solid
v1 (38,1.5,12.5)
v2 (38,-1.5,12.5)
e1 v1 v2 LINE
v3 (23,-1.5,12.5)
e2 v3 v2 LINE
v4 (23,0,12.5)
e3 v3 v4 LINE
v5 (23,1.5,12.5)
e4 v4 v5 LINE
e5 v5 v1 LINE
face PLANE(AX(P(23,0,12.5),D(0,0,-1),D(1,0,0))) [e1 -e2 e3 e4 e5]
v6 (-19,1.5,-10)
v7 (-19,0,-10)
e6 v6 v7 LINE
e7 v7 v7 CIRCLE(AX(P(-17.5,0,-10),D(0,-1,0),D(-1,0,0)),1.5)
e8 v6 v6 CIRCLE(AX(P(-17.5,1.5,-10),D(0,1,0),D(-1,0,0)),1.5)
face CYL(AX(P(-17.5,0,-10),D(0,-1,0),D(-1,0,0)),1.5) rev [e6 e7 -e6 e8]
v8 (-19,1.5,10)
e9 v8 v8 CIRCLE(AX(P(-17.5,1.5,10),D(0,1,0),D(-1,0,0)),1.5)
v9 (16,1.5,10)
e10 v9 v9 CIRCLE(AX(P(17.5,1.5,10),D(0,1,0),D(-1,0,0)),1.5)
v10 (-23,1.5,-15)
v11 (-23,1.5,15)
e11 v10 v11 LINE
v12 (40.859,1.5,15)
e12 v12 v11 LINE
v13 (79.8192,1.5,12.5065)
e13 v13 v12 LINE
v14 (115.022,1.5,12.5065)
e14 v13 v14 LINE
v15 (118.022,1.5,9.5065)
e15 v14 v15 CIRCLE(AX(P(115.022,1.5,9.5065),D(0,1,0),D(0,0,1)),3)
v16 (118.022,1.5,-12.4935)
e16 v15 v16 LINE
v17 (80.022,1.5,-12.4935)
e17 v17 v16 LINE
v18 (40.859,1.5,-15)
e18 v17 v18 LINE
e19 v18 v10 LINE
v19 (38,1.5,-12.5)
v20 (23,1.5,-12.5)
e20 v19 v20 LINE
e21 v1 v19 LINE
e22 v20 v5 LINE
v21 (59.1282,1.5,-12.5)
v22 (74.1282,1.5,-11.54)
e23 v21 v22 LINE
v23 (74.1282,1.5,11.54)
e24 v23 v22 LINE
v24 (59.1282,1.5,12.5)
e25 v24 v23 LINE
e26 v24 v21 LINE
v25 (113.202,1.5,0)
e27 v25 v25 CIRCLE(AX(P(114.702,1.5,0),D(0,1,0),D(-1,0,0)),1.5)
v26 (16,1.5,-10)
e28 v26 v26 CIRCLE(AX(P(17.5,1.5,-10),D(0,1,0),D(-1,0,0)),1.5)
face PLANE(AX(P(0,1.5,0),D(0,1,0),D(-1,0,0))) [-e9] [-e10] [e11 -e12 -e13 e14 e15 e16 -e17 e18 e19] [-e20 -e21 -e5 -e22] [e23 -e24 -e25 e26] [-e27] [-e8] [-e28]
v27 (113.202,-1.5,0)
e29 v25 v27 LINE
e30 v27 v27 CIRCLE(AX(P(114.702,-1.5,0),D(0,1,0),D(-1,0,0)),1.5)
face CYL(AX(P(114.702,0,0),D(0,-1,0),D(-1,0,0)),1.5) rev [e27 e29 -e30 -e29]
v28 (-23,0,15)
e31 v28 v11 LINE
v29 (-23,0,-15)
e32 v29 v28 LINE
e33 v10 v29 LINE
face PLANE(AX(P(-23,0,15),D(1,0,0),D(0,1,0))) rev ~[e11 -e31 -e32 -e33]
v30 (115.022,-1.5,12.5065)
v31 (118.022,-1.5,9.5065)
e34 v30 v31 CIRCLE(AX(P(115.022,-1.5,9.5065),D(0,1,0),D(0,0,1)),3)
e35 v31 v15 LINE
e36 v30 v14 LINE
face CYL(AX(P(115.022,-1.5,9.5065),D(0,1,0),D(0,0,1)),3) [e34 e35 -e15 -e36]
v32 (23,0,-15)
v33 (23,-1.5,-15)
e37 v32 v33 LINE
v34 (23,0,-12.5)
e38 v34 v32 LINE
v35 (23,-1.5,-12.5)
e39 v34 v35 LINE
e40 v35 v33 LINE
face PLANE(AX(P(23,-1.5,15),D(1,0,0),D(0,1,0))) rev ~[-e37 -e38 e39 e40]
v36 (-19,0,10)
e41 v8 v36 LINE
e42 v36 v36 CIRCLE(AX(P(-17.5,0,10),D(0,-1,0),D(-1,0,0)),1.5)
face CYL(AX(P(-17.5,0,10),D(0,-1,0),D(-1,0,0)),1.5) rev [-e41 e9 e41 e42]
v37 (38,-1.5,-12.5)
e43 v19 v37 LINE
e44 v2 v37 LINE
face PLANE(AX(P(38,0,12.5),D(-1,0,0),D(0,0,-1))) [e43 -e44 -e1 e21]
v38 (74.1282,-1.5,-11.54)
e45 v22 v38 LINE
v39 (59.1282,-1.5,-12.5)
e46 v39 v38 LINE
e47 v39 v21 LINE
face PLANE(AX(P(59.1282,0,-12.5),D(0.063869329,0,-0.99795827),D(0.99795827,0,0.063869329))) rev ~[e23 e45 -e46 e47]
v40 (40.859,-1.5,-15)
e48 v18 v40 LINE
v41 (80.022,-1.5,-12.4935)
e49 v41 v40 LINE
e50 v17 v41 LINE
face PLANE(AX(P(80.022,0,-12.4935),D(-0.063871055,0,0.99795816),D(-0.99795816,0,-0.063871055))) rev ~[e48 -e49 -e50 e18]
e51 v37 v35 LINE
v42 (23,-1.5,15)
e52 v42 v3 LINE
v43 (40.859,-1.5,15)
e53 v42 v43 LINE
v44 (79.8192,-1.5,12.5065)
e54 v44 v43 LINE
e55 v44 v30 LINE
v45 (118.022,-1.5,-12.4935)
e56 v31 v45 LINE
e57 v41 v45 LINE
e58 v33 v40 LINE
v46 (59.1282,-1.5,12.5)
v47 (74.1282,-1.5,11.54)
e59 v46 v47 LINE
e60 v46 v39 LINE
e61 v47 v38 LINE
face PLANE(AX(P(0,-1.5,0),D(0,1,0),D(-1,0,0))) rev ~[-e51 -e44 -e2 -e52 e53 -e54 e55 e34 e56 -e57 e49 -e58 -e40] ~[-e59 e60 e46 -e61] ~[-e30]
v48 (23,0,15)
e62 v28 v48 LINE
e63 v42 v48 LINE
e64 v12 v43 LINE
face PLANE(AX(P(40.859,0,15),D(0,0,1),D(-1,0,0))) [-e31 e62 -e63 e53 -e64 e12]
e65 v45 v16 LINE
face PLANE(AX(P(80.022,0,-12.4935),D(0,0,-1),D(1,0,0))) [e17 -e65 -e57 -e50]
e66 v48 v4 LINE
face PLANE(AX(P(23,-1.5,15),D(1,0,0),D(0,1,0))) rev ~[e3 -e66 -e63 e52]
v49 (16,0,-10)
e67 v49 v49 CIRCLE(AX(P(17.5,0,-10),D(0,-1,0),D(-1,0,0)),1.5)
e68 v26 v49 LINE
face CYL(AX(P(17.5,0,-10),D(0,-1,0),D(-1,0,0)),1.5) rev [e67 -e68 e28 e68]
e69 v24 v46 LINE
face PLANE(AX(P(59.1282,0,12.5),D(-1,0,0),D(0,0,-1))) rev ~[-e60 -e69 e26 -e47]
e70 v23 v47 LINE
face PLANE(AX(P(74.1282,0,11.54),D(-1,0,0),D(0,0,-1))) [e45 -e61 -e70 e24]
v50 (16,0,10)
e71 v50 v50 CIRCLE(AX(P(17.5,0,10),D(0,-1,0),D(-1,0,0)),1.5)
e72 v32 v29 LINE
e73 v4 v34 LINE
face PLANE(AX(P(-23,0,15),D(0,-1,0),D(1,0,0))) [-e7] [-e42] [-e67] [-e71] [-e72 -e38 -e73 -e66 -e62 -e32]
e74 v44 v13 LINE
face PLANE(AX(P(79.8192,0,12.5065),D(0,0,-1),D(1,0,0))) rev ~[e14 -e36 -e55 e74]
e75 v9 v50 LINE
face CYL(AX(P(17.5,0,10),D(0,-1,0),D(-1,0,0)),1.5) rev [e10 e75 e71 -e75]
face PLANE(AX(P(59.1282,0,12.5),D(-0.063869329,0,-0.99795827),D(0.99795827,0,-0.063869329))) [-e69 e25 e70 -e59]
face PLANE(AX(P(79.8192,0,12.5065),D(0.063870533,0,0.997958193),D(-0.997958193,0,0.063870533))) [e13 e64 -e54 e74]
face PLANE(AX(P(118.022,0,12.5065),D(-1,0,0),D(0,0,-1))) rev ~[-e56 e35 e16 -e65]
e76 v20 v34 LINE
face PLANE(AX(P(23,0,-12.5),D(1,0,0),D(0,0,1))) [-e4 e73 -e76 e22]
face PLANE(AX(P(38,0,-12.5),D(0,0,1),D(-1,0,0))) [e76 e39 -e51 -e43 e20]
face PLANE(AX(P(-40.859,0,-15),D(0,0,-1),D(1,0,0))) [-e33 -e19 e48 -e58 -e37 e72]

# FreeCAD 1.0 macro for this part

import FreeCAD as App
import Part
import Sketcher

V = App.Vector
Q = App.Units.Quantity


def edges_at(feature, points):
    """Names of the edges that pass closest to the given points."""
    edges = feature.Shape.Edges
    near = lambda p: min(range(len(edges)), key=lambda i: edges[i].distToShape(Part.Vertex(*p))[0])
    return sorted({f"Edge{near(p) + 1}" for p in points})

doc = App.newDocument("Part")
body = doc.addObject("PartDesign::Body", "Body")

# Sketch on XZ plane
sketch1 = body.newObject("Sketcher::SketchObject", "Sketch")
sketch1.AttachmentSupport = (doc.getObject("XZ_Plane"), [""])
sketch1.MapMode = "FlatFace"
sketch1.addGeometry([
    Part.LineSegment(V(40.9, 15, 0), V(79.8, 12.5, 0)),  # 0
    Part.LineSegment(V(79.8, 12.5, 0), V(118, 12.5, 0)),  # 1
    Part.LineSegment(V(118, 12.5, 0), V(118, -12.5, 0)),  # 2
    Part.LineSegment(V(118, -12.5, 0), V(80, -12.5, 0)),  # 3
    Part.LineSegment(V(80, -12.5, 0), V(40.9, -15, 0)),  # 4
    Part.LineSegment(V(40.9, -15, 0), V(-40.9, -15, 0)),  # 5
    Part.LineSegment(V(-40.9, -15, 0), V(-80, -12.5, 0)),  # 6
    Part.LineSegment(V(-80, -12.5, 0), V(-118, -12.5, 0)),  # 7
    Part.LineSegment(V(-118, -12.5, 0), V(-118, 12.5, 0)),  # 8
    Part.LineSegment(V(-118, 12.5, 0), V(-79.8, 12.5, 0)),  # 9
    Part.LineSegment(V(-79.8, 12.5, 0), V(-40.9, 15, 0)),  # 10
    Part.LineSegment(V(-40.9, 15, 0), V(40.9, 15, 0)),  # 11
    Part.Circle(V(17.5, -10, 0), V(0, 0, 1), 1.5),  # 12
    Part.Circle(V(-17.5, -10, 0), V(0, 0, 1), 1.5),  # 13
    Part.Circle(V(114.7, 0, 0), V(0, 0, 1), 1.5),  # 14
    Part.LineSegment(V(59.1, 12.5, 0), V(59.1, -12.5, 0)),  # 15
    Part.LineSegment(V(59.1, -12.5, 0), V(74.1, -11.5, 0)),  # 16
    Part.LineSegment(V(74.1, -11.5, 0), V(74.1, 11.5, 0)),  # 17
    Part.LineSegment(V(74.1, 11.5, 0), V(59.1, 12.5, 0)),  # 18
    Part.LineSegment(V(38, 12.5, 0), V(23, 12.5, 0)),  # 19
    Part.LineSegment(V(23, 12.5, 0), V(23, -12.5, 0)),  # 20
    Part.LineSegment(V(23, -12.5, 0), V(38, -12.5, 0)),  # 21
    Part.LineSegment(V(38, -12.5, 0), V(38, 12.5, 0)),  # 22
    Part.Circle(V(17.5, 10, 0), V(0, 0, 1), 1.5),  # 23
    Part.LineSegment(V(-23, -12.5, 0), V(-23, 12.5, 0)),  # 24
    Part.LineSegment(V(-23, 12.5, 0), V(-38, 12.5, 0)),  # 25
    Part.LineSegment(V(-38, 12.5, 0), V(-38, -12.5, 0)),  # 26
    Part.LineSegment(V(-38, -12.5, 0), V(-23, -12.5, 0)),  # 27
    Part.LineSegment(V(-74.1, -11.5, 0), V(-59.1, -12.5, 0)),  # 28
    Part.LineSegment(V(-59.1, -12.5, 0), V(-59.1, 12.5, 0)),  # 29
    Part.LineSegment(V(-59.1, 12.5, 0), V(-74.1, 11.5, 0)),  # 30
    Part.LineSegment(V(-74.1, 11.5, 0), V(-74.1, -11.5, 0)),  # 31
    Part.Circle(V(-114.7, 0, 0), V(0, 0, 1), 1.5),  # 32
    Part.Circle(V(-17.5, 10, 0), V(0, 0, 1), 1.5),  # 33
], False)
sketch1.addConstraint([
    Sketcher.Constraint("Coincident", 0, 2, 1, 1),
    Sketcher.Constraint("Coincident", 1, 2, 2, 1),
    Sketcher.Constraint("Coincident", 2, 2, 3, 1),
    Sketcher.Constraint("Coincident", 3, 2, 4, 1),
    Sketcher.Constraint("Coincident", 4, 2, 5, 1),
    Sketcher.Constraint("Coincident", 5, 2, 6, 1),
    Sketcher.Constraint("Coincident", 6, 2, 7, 1),
    Sketcher.Constraint("Coincident", 7, 2, 8, 1),
    Sketcher.Constraint("Coincident", 8, 2, 9, 1),
    Sketcher.Constraint("Coincident", 9, 2, 10, 1),
    Sketcher.Constraint("Coincident", 10, 2, 11, 1),
    Sketcher.Constraint("Coincident", 11, 2, 0, 1),
    Sketcher.Constraint("Coincident", 15, 2, 16, 1),
    Sketcher.Constraint("Coincident", 16, 2, 17, 1),
    Sketcher.Constraint("Coincident", 17, 2, 18, 1),
    Sketcher.Constraint("Coincident", 18, 2, 15, 1),
    Sketcher.Constraint("Coincident", 19, 2, 20, 1),
    Sketcher.Constraint("Coincident", 20, 2, 21, 1),
    Sketcher.Constraint("Coincident", 21, 2, 22, 1),
    Sketcher.Constraint("Coincident", 22, 2, 19, 1),
    Sketcher.Constraint("Coincident", 24, 2, 25, 1),
    Sketcher.Constraint("Coincident", 25, 2, 26, 1),
    Sketcher.Constraint("Coincident", 26, 2, 27, 1),
    Sketcher.Constraint("Coincident", 27, 2, 24, 1),
    Sketcher.Constraint("Coincident", 28, 2, 29, 1),
    Sketcher.Constraint("Coincident", 29, 2, 30, 1),
    Sketcher.Constraint("Coincident", 30, 2, 31, 1),
    Sketcher.Constraint("Coincident", 31, 2, 28, 1),
    Sketcher.Constraint("Horizontal", 1),
    Sketcher.Constraint("Vertical", 2),
    Sketcher.Constraint("Horizontal", 3),
    Sketcher.Constraint("Horizontal", 5),
    Sketcher.Constraint("Horizontal", 7),
    Sketcher.Constraint("Vertical", 8),
    Sketcher.Constraint("Horizontal", 9),
    Sketcher.Constraint("Horizontal", 11),
    Sketcher.Constraint("Vertical", 15),
    Sketcher.Constraint("Vertical", 17),
    Sketcher.Constraint("Horizontal", 19),
    Sketcher.Constraint("Vertical", 20),
    Sketcher.Constraint("Horizontal", 21),
    Sketcher.Constraint("Vertical", 22),
    Sketcher.Constraint("Vertical", 24),
    Sketcher.Constraint("Horizontal", 25),
    Sketcher.Constraint("Vertical", 26),
    Sketcher.Constraint("Horizontal", 27),
    Sketcher.Constraint("Vertical", 29),
    Sketcher.Constraint("Vertical", 31),
    Sketcher.Constraint("Equal", 12, 13),
    Sketcher.Constraint("Equal", 13, 14),
    Sketcher.Constraint("Equal", 14, 23),
    Sketcher.Constraint("Equal", 23, 32),
    Sketcher.Constraint("Equal", 32, 33),
    Sketcher.Constraint("Symmetric", 13, 3, 23, 3, -1, 1),
    Sketcher.Constraint("Symmetric", 14, 3, 32, 3, -1, 1),
    Sketcher.Constraint("Symmetric", 12, 3, 33, 3, -1, 1),
    Sketcher.Constraint("Symmetric", 4, 2, 10, 2, -1, 1),
    Sketcher.Constraint("Symmetric", 20, 2, 24, 2, -1, 1),
    Sketcher.Constraint("Symmetric", 22, 2, 26, 2, -1, 1),
    Sketcher.Constraint("Symmetric", 18, 2, 28, 2, -1, 1),
    Sketcher.Constraint("Symmetric", 16, 2, 30, 2, -1, 1),
    Sketcher.Constraint("Symmetric", 12, 3, 13, 3, -2),
    Sketcher.Constraint("Symmetric", 3, 2, 6, 2, -2),
    Sketcher.Constraint("Symmetric", 1, 2, 8, 2, -2),
    Sketcher.Constraint("PointOnObject", 14, 3, -1),
    Sketcher.Constraint("Parallel", 0, 6),
    Sketcher.Constraint("Parallel", 4, 10),
    Sketcher.Constraint("Parallel", 10, 16),
    Sketcher.Constraint("Parallel", 6, 18),
    Sketcher.Constraint("Parallel", 18, 28),
    Sketcher.Constraint("Parallel", 16, 30),
    Sketcher.Constraint("Horizontal", 18, 2, 19, 2),
    Sketcher.Constraint("Horizontal", 15, 2, 20, 2),
    Sketcher.Constraint("Horizontal", 22, 2, 24, 2),
    Sketcher.Constraint("Horizontal", 17, 2, 30, 2),
    Sketcher.Constraint("Vertical", 4, 2, 11, 2),
    Sketcher.Constraint("Equal", 8, 15),
    Sketcher.Constraint("Diameter", 12, Q("3 mm")),
    Sketcher.Constraint("DistanceX", 3, 2, 3, 1, Q("38 mm")),
    Sketcher.Constraint("DistanceX", 19, 2, 19, 1, Q("15 mm")),
    Sketcher.Constraint("DistanceY", 2, 2, 2, 1, Q("25 mm")),
    Sketcher.Constraint("DistanceY", 4, 2, -1, 1, Q("15 mm")),
    Sketcher.Constraint("DistanceX", -1, 1, 19, 2, Q("23 mm")),
    Sketcher.Constraint("DistanceY", 4, 2, 12, 3, Q("5 mm")),
    Sketcher.Constraint("DistanceX", 15, 2, 16, 2, Q("15 mm")),
    Sketcher.Constraint("DistanceX", 23, 3, 19, 2, Q("5.5 mm")),
    Sketcher.Constraint("DistanceX", 14, 3, 1, 2, Q("3.32 mm")),
    Sketcher.Constraint("DistanceX", -1, 1, 4, 2, Q("40.859 mm")),
    Sketcher.Constraint("DistanceX", 4, 2, 3, 2, Q("39.163 mm")),
    Sketcher.Constraint("DistanceY", 17, 1, 17, 2, Q("23.08 mm")),
    Sketcher.Constraint("DistanceX", 16, 2, 3, 2, Q("5.8938 mm")),
])
pad1 = body.newObject("PartDesign::Pad", "Pad")
pad1.Profile = sketch1
pad1.Length = 3
pad1.Midplane = True
doc.recompute()

fillet = body.newObject("PartDesign::Fillet", "Fillet")
fillet.Base = (pad1, edges_at(pad1, [(-118.022, 0, 12.507), (118.022, 0, 12.507)]))
fillet.Radius = 3

# Sketch on XY plane
sketch2 = body.newObject("Sketcher::SketchObject", "Sketch001")
sketch2.AttachmentSupport = (doc.getObject("XY_Plane"), [""])
sketch2.MapMode = "FlatFace"
sketch2.AttachmentOffset = App.Placement(V(0, 0, 15), App.Rotation())
sketch2.addGeometry([
    Part.LineSegment(V(-23, 1.5, 0), V(-118, 1.5, 0)),  # 0
    Part.LineSegment(V(-118, 1.5, 0), V(-118, -1.5, 0)),  # 1
    Part.LineSegment(V(-118, -1.5, 0), V(23, -1.5, 0)),  # 2
    Part.LineSegment(V(23, -1.5, 0), V(23, 0, 0)),  # 3
    Part.LineSegment(V(23, 0, 0), V(-23, 0, 0)),  # 4
    Part.LineSegment(V(-23, 0, 0), V(-23, 1.5, 0)),  # 5
], False)
sketch2.addConstraint([
    Sketcher.Constraint("Coincident", 0, 2, 1, 1),
    Sketcher.Constraint("Coincident", 1, 2, 2, 1),
    Sketcher.Constraint("Coincident", 2, 2, 3, 1),
    Sketcher.Constraint("Coincident", 3, 2, 4, 1),
    Sketcher.Constraint("Coincident", 4, 2, 5, 1),
    Sketcher.Constraint("Coincident", 5, 2, 0, 1),
    Sketcher.Constraint("Horizontal", 0),
    Sketcher.Constraint("Vertical", 1),
    Sketcher.Constraint("Horizontal", 2),
    Sketcher.Constraint("Vertical", 3),
    Sketcher.Constraint("Horizontal", 4),
    Sketcher.Constraint("Vertical", 5),
    Sketcher.Constraint("Symmetric", 3, 2, 4, 2, -1, 1),
    Sketcher.Constraint("Equal", 3, 5),
    Sketcher.Constraint("DistanceX", 4, 2, 4, 1, Q("46 mm")),
    Sketcher.Constraint("DistanceY", 1, 2, 1, 1, Q("3 mm")),
    Sketcher.Constraint("DistanceX", 0, 2, 0, 1, Q("95.022 mm")),
])
pocket1 = body.newObject("PartDesign::Pocket", "Pocket")
pocket1.Profile = sketch2
pocket1.Type = "ThroughAll"

doc.recompute()
